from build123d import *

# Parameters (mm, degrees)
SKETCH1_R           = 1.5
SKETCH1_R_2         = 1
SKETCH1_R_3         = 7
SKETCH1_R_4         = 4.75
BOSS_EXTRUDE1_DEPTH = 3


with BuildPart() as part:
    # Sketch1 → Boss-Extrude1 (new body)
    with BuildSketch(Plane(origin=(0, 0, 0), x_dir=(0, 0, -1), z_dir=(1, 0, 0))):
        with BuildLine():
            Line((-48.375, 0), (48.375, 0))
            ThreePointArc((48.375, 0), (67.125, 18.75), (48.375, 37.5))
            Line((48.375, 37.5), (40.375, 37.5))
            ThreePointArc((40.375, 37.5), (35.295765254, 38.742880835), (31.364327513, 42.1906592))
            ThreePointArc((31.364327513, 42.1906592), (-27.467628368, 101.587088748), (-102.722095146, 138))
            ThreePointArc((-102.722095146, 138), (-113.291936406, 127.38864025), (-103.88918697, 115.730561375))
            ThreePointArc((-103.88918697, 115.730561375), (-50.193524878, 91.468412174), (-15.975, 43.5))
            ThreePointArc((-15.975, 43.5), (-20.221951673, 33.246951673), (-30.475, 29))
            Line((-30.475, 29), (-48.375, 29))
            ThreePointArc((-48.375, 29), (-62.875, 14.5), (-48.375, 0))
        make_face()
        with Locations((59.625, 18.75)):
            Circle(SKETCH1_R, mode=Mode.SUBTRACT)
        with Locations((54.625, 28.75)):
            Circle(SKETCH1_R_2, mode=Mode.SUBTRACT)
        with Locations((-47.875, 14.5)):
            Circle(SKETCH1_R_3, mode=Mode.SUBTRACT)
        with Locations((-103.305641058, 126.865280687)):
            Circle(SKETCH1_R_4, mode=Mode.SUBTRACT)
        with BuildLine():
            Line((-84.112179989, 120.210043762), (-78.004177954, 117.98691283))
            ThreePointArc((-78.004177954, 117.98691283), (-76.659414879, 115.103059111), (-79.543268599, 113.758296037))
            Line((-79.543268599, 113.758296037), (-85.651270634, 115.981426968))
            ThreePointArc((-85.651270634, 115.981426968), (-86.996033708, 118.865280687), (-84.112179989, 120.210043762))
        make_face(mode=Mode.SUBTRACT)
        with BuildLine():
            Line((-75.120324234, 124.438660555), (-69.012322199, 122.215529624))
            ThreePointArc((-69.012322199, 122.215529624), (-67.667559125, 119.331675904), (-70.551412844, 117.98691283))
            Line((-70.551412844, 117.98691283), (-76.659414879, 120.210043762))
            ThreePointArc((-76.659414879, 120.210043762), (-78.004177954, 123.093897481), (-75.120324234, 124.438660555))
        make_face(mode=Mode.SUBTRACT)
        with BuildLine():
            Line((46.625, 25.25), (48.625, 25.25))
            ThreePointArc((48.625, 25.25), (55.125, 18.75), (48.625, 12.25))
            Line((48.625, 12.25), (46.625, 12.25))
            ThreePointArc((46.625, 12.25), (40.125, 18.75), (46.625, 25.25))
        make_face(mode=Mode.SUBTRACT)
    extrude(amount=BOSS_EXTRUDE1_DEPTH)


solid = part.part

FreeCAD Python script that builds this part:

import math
import FreeCAD as App
import Part
import Sketcher
from FreeCAD import Vector
Q = App.Units.Quantity

doc = App.newDocument("Part")
params = doc.addObject("Spreadsheet::Sheet", "Params")
for row, (alias, value) in enumerate([
    ("sketch1_diameter", "14 mm"),
    ("sketch1_diameter2", "3 mm"),
    ("sketch1_diameter3", "2 mm"),
    ("sketch1_radius", "11 mm"),
    ("sketch1_diameter4", "9.5 mm"),
    ("pad1_length", "3 mm"),
], start=1):
    params.set(f"A{row}", alias)
    params.set(f"B{row}", "=" + value)
    params.setAlias(f"B{row}", alias)

body = doc.addObject("PartDesign::Body", "Body")

sketch1 = body.newObject("Sketcher::SketchObject", "Sketch")
sketch1.AttachmentSupport = (doc.getObject("YZ_Plane"), [""])
sketch1.MapMode = "FlatFace"
sketch1.addGeometry([
    Part.LineSegment(Vector(0, 48.4, 0), Vector(0, -48.4, 0)),
    Part.ArcOfCircle(Part.Circle(Vector(18.8, -48.4, 0), Vector(0, 0, 1), 18.8), math.radians(180), math.radians(360)),
    Part.LineSegment(Vector(37.5, -48.4, 0), Vector(37.5, -40.4, 0)),
    Part.ArcOfCircle(Part.Circle(Vector(48.5, -40.4, 0), Vector(0, 0, 1), 11), math.radians(125), math.radians(180)),
    Part.ArcOfCircle(Part.Circle(Vector(-99.7, 171.3, 0), Vector(0, 0, 1), 247.4), math.radians(-55), math.radians(-16)),
    Part.ArcOfCircle(Part.Circle(Vector(126.8, 102.1, 0), Vector(0, 0, 1), 11.2), math.radians(3), math.radians(171)),
    Part.ArcOfCircle(Part.Circle(Vector(4, 122, 0), Vector(0, 0, 1), 113.2), math.radians(-70), math.radians(-9)),
    Part.ArcOfCircle(Part.Circle(Vector(43.5, 30.5, 0), Vector(0, 0, 1), 14.5), math.radians(-180), math.radians(-90)),
    Part.LineSegment(Vector(29, 30.5, 0), Vector(29, 48.4, 0)),
    Part.ArcOfCircle(Part.Circle(Vector(14.5, 48.4, 0), Vector(0, 0, 1), 14.5), math.radians(0), math.radians(180)),
    Part.Circle(Vector(14.5, 47.9, 0), Vector(0, 0, 1), 7),
    Part.ArcOfCircle(Part.Circle(Vector(18.8, -46.6, 0), Vector(0, 0, 1), 6.5), math.radians(0), math.radians(180)),
    Part.LineSegment(Vector(25.2, -46.6, 0), Vector(25.2, -48.6, 0)),
    Part.ArcOfCircle(Part.Circle(Vector(18.8, -48.6, 0), Vector(0, 0, 1), 6.5), math.radians(180), math.radians(360)),
    Part.LineSegment(Vector(12.2, -48.6, 0), Vector(12.2, -46.6, 0)),
    Part.Circle(Vector(18.8, -59.6, 0), Vector(0, 0, 1), 1.5),
    Part.Circle(Vector(28.8, -54.6, 0), Vector(0, 0, 1), 1),
    Part.Circle(Vector(126.9, 103.3, 0), Vector(0, 0, 1), 4.8),
    Part.ArcOfCircle(Part.Circle(Vector(118.1, 84.9, 0), Vector(0, 0, 1), 2.2), math.radians(-20), math.radians(160)),
    Part.LineSegment(Vector(120.2, 84.1, 0), Vector(118, 78, 0)),
    Part.ArcOfCircle(Part.Circle(Vector(115.9, 78.8, 0), Vector(0, 0, 1), 2.2), math.radians(160), math.radians(340)),
    Part.LineSegment(Vector(113.8, 79.5, 0), Vector(116, 85.7, 0)),
    Part.ArcOfCircle(Part.Circle(Vector(122.3, 75.9, 0), Vector(0, 0, 1), 2.2), math.radians(-20), math.radians(160)),
    Part.LineSegment(Vector(124.4, 75.1, 0), Vector(122.2, 69, 0)),
    Part.ArcOfCircle(Part.Circle(Vector(120.1, 69.8, 0), Vector(0, 0, 1), 2.2), math.radians(160), math.radians(340)),
    Part.LineSegment(Vector(118, 70.6, 0), Vector(120.2, 76.7, 0)),
], False)
sketch1.addConstraint([
    Sketcher.Constraint("Tangent", 0, 2, 1, 1),
    Sketcher.Constraint("Tangent", 1, 2, 2, 1),
    Sketcher.Constraint("Tangent", 2, 2, 3, 2),
    Sketcher.Constraint("Tangent", 3, 1, 4, 1),
    Sketcher.Constraint("Coincident", 4, 2, 5, 1),
    Sketcher.Constraint("Tangent", 5, 2, 6, 2),
    Sketcher.Constraint("Coincident", 6, 1, 7, 2),
    Sketcher.Constraint("Tangent", 7, 1, 8, 1),
    Sketcher.Constraint("Tangent", 8, 2, 9, 1),
    Sketcher.Constraint("Tangent", 9, 2, 0, 1),
    Sketcher.Constraint("Tangent", 11, 1, 12, 1),
    Sketcher.Constraint("Tangent", 12, 2, 13, 2),
    Sketcher.Constraint("Tangent", 13, 1, 14, 1),
    Sketcher.Constraint("Tangent", 14, 2, 11, 2),
    Sketcher.Constraint("Tangent", 18, 1, 19, 1),
    Sketcher.Constraint("Tangent", 19, 2, 20, 2),
    Sketcher.Constraint("Tangent", 20, 1, 21, 1),
    Sketcher.Constraint("Tangent", 21, 2, 18, 2),
    Sketcher.Constraint("Tangent", 22, 1, 23, 1),
    Sketcher.Constraint("Tangent", 23, 2, 24, 2),
    Sketcher.Constraint("Tangent", 24, 1, 25, 1),
    Sketcher.Constraint("Tangent", 25, 2, 22, 2),
    Sketcher.Constraint("Vertical", 0),
    Sketcher.Constraint("Vertical", 2),
    Sketcher.Constraint("Vertical", 8),
    Sketcher.Constraint("Vertical", 12),
    Sketcher.Constraint("Vertical", 14),
    Sketcher.Constraint("Equal", 7, 9),
    Sketcher.Constraint("Equal", 18, 20),
    Sketcher.Constraint("Equal", 20, 22),
    Sketcher.Constraint("Equal", 22, 24),
    Sketcher.Constraint("Symmetric", 0, 2, 9, 2, -1, 1),
    Sketcher.Constraint("Parallel", 21, 23),
    Sketcher.Constraint("Vertical", 9, 3, 10, 3),
    Sketcher.Constraint("Vertical", 1, 3, 11, 3),
    Sketcher.Constraint("Vertical", 13, 3, 15, 3),
    Sketcher.Constraint("Vertical", 7, 3, 6, 1),
    Sketcher.Constraint("Vertical", 19, 2, 24, 1),
    Sketcher.Constraint("Vertical", 18, 1, 25, 2),
    Sketcher.Constraint("Diameter", 10, Q("14 mm")),
    Sketcher.Constraint("Diameter", 15, Q("3 mm")),
    Sketcher.Constraint("Diameter", 16, Q("2 mm")),
    Sketcher.Constraint("Radius", 3, Q("11 mm")),
    Sketcher.Constraint("Diameter", 17, Q("9.5 mm")),
    Sketcher.Constraint("Radius", 7, Q("14.5 mm")),
    Sketcher.Constraint("Radius", 11, Q("6.5 mm")),
    Sketcher.Constraint("DistanceY", 2, 1, 2, 2, Q("8 mm")),
    Sketcher.Constraint("DistanceY", 12, 2, 12, 1, Q("2 mm")),
    Sketcher.Constraint("Angle", 19, Q("-110 deg")),
    Sketcher.Constraint("Radius", 1, Q("18.75 mm")),
    Sketcher.Constraint("Radius", 18, Q("2.25 mm")),
    Sketcher.Constraint("DistanceY", 8, 1, 8, 2, Q("17.9 mm")),
    Sketcher.Constraint("DistanceX", -1, 1, 4, 2, Q("138 mm")),
    Sketcher.Constraint("DistanceY", 11, 3, 9, 3, Q("95 mm")),
    Sketcher.Constraint("DistanceY", 15, 3, 13, 3, Q("11 mm")),
    Sketcher.Constraint("DistanceX", 15, 3, 16, 3, Q("10 mm")),
    Sketcher.Constraint("DistanceY", 15, 3, 16, 3, Q("5 mm")),
    Sketcher.Constraint("Distance", 19, Q("6.5 mm")),
    Sketcher.Constraint("DistanceY", 0, 2, 0, 1, Q("96.75 mm")),
    Sketcher.Constraint("DistanceY", 10, 3, 9, 3, Q("0.5 mm")),
    Sketcher.Constraint("Radius", 4, Q("247.421843 mm")),
    Sketcher.Constraint("Radius", 5, Q("11.216125 mm")),
    Sketcher.Constraint("Radius", 6, Q("113.159135 mm")),
    Sketcher.Constraint("DistanceY", 5, 3, 4, 3, Q("69.220598 mm")),
    Sketcher.Constraint("DistanceX", 18, 3, 5, 3, Q("8.705898 mm")),
    Sketcher.Constraint("DistanceY", 22, 3, 20, 1, Q("3.653399 mm")),
    Sketcher.Constraint("DistanceX", 4, 3, -1, 1, Q("99.72468 mm")),
    Sketcher.Constraint("DistanceX", -1, 1, 17, 3, Q("126.865281 mm")),
    Sketcher.Constraint("DistanceY", -1, 1, 17, 3, Q("103.305641 mm")),
    Sketcher.Constraint("DistanceY", -1, 1, 22, 3, Q("75.88987 mm")),
])
sketch1.setExpression("Constraints[39]", "Params.sketch1_diameter")
sketch1.setExpression("Constraints[40]", "Params.sketch1_diameter2")
sketch1.setExpression("Constraints[41]", "Params.sketch1_diameter3")
sketch1.setExpression("Constraints[42]", "Params.sketch1_radius")
sketch1.setExpression("Constraints[43]", "Params.sketch1_diameter4")
pad1 = body.newObject("PartDesign::Pad", "Pad")
pad1.Profile = sketch1
pad1.setExpression("Length", "Params.pad1_length")

doc.recompute()
